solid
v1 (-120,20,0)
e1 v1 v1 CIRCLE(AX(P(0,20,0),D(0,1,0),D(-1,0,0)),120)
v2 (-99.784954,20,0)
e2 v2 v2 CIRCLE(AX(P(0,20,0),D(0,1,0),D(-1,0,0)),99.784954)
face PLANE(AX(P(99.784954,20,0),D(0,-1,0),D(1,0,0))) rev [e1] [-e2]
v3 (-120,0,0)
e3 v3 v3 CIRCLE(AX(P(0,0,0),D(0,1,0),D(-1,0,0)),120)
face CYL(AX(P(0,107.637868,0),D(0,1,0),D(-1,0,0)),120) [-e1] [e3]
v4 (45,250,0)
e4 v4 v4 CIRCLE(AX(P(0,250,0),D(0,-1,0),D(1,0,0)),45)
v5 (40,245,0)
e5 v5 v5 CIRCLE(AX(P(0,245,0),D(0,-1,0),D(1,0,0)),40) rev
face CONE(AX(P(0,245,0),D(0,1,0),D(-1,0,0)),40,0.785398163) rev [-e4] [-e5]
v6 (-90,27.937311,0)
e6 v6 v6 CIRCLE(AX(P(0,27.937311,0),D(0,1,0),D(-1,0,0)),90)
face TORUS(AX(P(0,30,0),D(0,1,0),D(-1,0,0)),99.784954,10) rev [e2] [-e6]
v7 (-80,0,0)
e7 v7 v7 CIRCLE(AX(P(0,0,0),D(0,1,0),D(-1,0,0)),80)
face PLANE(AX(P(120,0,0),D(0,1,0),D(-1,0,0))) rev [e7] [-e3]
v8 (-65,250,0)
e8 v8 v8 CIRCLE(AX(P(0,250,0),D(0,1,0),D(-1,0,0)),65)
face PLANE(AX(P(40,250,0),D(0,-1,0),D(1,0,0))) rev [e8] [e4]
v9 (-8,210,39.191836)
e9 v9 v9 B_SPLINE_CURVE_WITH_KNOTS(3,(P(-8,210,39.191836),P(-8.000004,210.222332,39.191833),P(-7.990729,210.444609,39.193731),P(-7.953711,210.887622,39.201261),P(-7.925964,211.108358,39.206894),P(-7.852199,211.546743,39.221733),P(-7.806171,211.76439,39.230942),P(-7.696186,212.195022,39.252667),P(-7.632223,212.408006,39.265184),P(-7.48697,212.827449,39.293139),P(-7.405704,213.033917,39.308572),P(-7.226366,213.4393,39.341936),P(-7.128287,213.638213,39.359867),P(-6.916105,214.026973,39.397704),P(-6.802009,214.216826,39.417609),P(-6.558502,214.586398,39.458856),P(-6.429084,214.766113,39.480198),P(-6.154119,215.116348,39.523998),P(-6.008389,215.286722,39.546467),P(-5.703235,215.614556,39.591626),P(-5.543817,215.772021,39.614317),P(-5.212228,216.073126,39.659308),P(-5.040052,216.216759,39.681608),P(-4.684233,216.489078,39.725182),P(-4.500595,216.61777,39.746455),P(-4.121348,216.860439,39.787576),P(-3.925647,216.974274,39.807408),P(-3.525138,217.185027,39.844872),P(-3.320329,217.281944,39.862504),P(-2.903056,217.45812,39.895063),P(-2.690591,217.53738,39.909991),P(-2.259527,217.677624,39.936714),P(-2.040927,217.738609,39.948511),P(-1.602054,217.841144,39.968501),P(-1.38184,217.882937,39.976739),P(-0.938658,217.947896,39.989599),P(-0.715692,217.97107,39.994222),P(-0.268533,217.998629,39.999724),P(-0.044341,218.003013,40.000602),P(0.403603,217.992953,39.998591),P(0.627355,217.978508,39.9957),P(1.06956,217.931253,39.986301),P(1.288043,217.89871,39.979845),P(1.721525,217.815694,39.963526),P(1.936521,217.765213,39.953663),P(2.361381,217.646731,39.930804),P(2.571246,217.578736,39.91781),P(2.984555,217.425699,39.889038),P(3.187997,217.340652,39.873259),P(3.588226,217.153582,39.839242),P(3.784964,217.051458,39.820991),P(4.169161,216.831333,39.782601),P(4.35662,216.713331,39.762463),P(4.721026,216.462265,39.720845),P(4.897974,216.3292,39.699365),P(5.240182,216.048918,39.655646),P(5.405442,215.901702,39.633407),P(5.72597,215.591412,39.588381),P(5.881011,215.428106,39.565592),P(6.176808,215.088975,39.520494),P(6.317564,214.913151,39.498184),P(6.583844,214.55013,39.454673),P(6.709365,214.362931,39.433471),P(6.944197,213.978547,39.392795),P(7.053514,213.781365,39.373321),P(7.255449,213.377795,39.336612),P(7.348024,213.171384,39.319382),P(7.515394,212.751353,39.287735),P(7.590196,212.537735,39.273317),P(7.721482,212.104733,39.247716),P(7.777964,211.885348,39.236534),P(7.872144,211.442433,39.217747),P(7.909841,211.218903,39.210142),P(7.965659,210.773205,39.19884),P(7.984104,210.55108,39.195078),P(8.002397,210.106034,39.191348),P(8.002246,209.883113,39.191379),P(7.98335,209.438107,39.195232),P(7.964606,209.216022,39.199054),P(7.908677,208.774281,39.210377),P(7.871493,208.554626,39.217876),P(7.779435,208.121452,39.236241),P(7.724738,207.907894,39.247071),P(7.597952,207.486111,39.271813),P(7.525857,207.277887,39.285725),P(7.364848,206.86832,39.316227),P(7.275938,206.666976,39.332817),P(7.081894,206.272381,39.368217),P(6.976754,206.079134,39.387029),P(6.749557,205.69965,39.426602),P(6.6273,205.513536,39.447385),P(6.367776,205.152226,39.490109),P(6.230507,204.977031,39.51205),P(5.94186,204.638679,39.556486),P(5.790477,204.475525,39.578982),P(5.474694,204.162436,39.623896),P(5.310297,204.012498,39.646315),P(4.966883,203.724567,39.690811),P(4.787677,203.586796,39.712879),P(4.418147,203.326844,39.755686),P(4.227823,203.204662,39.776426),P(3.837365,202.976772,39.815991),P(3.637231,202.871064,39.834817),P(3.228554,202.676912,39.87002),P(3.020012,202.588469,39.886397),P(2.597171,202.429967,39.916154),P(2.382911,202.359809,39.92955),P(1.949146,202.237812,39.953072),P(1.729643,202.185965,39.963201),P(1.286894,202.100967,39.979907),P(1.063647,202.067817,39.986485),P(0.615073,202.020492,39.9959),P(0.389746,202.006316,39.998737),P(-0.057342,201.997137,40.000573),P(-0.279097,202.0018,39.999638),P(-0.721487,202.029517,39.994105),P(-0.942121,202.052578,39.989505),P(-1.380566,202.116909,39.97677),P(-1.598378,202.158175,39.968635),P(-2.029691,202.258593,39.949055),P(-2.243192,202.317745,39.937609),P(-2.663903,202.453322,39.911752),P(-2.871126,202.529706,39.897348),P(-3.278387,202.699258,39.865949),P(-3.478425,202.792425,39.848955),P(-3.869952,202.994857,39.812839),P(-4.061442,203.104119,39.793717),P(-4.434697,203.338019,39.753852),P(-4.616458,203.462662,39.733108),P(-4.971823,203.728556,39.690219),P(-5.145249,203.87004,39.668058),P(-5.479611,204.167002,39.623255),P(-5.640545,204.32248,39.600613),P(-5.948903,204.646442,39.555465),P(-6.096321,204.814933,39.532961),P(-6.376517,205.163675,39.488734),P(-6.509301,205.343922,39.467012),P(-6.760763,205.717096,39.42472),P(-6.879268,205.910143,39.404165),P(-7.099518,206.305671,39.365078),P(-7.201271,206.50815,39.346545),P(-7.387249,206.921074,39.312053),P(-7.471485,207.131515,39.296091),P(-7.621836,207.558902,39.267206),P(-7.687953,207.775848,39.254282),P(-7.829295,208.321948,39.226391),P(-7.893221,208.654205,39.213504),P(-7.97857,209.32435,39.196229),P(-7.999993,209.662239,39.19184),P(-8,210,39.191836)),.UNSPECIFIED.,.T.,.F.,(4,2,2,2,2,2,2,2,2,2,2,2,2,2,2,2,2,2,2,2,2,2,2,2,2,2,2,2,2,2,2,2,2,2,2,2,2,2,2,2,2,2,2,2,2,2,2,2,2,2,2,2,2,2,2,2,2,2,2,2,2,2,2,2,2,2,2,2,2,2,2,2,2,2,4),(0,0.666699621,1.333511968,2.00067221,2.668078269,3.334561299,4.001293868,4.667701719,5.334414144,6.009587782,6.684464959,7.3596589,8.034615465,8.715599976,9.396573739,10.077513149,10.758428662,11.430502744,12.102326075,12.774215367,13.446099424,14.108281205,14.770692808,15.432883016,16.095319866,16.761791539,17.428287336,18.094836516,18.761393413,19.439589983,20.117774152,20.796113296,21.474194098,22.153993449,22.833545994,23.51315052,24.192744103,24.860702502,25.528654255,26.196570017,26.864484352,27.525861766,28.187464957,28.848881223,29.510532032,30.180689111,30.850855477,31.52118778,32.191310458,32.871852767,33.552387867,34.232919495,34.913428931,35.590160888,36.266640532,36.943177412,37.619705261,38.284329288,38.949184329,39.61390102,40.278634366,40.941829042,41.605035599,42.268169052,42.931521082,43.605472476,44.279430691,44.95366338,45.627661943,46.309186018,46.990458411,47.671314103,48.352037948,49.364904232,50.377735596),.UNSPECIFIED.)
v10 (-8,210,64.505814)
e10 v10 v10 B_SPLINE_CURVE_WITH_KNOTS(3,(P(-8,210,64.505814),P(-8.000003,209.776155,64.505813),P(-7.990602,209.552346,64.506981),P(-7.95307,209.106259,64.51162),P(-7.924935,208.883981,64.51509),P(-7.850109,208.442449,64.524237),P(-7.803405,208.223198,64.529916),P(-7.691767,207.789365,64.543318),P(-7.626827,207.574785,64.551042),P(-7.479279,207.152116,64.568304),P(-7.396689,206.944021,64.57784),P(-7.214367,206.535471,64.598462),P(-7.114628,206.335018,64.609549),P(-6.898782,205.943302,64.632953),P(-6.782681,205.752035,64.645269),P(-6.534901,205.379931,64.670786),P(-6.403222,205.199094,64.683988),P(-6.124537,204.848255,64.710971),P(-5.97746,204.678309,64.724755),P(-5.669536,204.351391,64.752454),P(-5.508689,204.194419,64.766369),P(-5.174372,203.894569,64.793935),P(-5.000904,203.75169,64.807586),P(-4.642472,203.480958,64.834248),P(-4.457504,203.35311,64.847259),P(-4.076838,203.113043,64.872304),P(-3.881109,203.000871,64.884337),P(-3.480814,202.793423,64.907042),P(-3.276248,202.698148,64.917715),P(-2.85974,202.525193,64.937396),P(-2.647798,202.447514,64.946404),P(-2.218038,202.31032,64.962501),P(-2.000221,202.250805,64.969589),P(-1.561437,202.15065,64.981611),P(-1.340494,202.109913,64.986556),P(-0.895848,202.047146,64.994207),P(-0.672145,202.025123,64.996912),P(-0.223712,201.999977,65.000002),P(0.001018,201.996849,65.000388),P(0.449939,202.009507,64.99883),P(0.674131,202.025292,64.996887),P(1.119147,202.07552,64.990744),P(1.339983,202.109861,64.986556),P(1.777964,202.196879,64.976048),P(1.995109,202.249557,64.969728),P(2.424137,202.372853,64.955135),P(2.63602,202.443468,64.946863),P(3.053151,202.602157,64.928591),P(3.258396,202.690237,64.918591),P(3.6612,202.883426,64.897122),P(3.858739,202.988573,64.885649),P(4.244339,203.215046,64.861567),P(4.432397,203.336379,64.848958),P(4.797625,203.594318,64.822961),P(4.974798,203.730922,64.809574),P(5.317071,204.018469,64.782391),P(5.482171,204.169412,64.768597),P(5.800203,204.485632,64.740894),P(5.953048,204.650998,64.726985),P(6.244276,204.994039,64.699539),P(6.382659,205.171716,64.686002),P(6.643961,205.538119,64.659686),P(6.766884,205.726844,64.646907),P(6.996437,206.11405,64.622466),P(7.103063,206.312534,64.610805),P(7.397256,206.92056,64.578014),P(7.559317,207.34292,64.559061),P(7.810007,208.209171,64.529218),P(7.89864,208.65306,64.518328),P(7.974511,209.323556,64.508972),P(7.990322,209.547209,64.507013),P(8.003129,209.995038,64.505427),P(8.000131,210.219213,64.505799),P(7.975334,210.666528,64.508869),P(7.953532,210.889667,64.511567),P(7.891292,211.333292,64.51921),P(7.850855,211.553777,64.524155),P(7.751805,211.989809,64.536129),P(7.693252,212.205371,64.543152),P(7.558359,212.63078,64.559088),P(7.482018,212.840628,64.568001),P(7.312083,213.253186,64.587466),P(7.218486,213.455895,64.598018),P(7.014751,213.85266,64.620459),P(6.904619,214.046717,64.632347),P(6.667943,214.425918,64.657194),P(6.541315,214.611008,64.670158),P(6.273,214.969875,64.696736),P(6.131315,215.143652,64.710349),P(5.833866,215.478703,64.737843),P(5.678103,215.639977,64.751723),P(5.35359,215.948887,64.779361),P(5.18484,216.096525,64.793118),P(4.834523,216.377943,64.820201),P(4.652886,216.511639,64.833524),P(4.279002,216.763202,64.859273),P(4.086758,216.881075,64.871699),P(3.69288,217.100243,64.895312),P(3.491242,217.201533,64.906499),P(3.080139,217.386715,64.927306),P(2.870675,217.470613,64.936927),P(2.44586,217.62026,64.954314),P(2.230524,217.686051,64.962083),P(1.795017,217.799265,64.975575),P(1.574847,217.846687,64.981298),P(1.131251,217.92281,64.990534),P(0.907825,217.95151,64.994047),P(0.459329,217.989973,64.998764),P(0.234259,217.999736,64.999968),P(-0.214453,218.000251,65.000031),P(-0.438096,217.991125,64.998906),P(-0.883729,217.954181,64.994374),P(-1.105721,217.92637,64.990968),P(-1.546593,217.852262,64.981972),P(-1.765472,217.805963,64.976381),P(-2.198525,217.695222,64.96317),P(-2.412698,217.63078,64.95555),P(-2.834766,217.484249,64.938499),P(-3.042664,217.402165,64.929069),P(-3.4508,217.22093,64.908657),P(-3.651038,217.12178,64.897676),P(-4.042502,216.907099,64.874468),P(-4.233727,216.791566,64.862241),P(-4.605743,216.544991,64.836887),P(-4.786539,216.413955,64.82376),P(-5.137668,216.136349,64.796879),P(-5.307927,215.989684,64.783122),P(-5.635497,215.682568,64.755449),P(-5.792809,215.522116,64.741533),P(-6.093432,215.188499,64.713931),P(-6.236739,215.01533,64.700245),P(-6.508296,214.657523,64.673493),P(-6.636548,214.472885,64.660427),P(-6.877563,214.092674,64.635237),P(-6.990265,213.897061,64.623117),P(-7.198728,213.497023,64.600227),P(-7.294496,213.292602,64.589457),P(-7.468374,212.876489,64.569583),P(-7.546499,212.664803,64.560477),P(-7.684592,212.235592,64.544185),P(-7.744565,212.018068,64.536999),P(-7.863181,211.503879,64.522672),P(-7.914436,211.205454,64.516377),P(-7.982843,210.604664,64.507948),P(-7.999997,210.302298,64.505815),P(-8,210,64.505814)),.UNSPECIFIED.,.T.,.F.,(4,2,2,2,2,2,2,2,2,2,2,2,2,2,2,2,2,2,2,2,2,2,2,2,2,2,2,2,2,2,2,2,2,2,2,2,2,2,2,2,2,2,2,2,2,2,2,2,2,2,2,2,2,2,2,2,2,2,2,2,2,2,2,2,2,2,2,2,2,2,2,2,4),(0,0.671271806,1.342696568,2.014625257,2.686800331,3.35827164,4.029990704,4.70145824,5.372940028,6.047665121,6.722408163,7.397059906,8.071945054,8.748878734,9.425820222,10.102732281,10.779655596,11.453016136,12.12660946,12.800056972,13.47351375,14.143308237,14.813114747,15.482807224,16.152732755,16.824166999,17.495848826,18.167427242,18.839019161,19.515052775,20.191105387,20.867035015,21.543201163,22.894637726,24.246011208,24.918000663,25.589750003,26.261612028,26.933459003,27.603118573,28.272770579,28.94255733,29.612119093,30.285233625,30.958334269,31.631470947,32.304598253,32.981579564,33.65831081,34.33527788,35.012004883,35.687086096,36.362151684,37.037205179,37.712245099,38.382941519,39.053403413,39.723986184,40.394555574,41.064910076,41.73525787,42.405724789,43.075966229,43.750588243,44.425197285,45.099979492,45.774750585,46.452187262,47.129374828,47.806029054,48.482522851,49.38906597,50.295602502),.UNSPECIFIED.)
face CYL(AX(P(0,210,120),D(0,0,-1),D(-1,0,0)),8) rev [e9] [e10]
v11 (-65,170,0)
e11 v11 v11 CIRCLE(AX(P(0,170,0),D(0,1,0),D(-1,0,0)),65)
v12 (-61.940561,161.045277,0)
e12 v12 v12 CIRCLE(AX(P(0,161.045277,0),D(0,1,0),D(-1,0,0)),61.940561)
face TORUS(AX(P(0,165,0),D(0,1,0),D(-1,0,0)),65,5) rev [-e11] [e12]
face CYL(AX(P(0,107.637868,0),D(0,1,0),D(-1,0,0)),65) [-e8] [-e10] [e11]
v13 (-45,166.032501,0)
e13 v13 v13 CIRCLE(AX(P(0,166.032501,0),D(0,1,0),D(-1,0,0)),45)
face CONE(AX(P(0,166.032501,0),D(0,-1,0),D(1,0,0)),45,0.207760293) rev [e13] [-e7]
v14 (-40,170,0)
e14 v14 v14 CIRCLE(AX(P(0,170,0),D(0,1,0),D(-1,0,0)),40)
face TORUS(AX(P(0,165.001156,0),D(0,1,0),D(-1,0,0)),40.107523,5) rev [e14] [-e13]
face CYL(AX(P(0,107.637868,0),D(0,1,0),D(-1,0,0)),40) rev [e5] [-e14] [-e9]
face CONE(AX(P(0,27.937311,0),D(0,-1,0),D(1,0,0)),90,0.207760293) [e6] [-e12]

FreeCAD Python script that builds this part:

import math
import FreeCAD as App
import Part
import Sketcher
from FreeCAD import Vector


def edges_at(feature, points):
    """Names of the edges that pass closest to the given points."""
    edges = feature.Shape.Edges
    near = lambda p: min(range(len(edges)), key=lambda i: edges[i].distToShape(Part.Vertex(*p))[0])
    return sorted({f"Edge{near(p) + 1}" for p in points})

doc = App.newDocument("Part")
body = doc.addObject("PartDesign::Body", "Body")

# Sketch on XY plane
sketch1 = doc.addObject("Sketcher::SketchObject", "Sketch")
body.addObject(sketch1)
sketch1.AttachmentSupport = (doc.XY_Plane, [""])
sketch1.MapMode = "FlatFace"
sketch1.addGeometry([
    Part.LineSegment(Vector(65, 250, 0), Vector(40, 250, 0)),  # 0
    Part.LineSegment(Vector(40, 250, 0), Vector(40, 170, 0)),  # 1
    Part.ArcOfCircle(Part.Circle(Vector(40.1, 165, 0), Vector(0, 0, 1), 5), math.radians(12), math.radians(91)),  # 2
    Part.LineSegment(Vector(45, 166, 0), Vector(80, 0, 0)),  # 3
    Part.LineSegment(Vector(80, 0, 0), Vector(120, 0, 0)),  # 4
    Part.LineSegment(Vector(120, 0, 0), Vector(120, 20, 0)),  # 5
    Part.LineSegment(Vector(120, 20, 0), Vector(99.8, 20, 0)),  # 6
    Part.ArcOfCircle(Part.Circle(Vector(99.8, 30, 0), Vector(0, 0, 1), 10), math.radians(-168), math.radians(-90)),  # 7
    Part.LineSegment(Vector(90, 27.9, 0), Vector(61.9, 161, 0)),  # 8
    Part.ArcOfCircle(Part.Circle(Vector(65, 165, 0), Vector(0, 0, 1), 5), math.radians(90), math.radians(232)),  # 9
    Part.LineSegment(Vector(65, 170, 0), Vector(65, 250, 0)),  # 10
], False)
sketch1.addConstraint([
    Sketcher.Constraint("Coincident", 0, 2, 1, 1),
    Sketcher.Constraint("Coincident", 1, 2, 2, 2),
    Sketcher.Constraint("Tangent", 2, 1, 3, 1),
    Sketcher.Constraint("Coincident", 3, 2, 4, 1),
    Sketcher.Constraint("Coincident", 4, 2, 5, 1),
    Sketcher.Constraint("Coincident", 5, 2, 6, 1),
    Sketcher.Constraint("Tangent", 6, 2, 7, 2),
    Sketcher.Constraint("Tangent", 7, 1, 8, 1),
    Sketcher.Constraint("Coincident", 8, 2, 9, 2),
    Sketcher.Constraint("Coincident", 9, 1, 10, 1),
    Sketcher.Constraint("Coincident", 10, 2, 0, 1),
    Sketcher.Constraint("Horizontal", 0),
    Sketcher.Constraint("Vertical", 1),
    Sketcher.Constraint("Horizontal", 4),
    Sketcher.Constraint("Vertical", 5),
    Sketcher.Constraint("Horizontal", 6),
    Sketcher.Constraint("Vertical", 10),
    Sketcher.Constraint("Equal", 2, 9),
    Sketcher.Constraint("PointOnObject", 3, 2, -1),
    Sketcher.Constraint("Parallel", 3, 8),
    Sketcher.Constraint("Horizontal", 1, 2, 9, 1),
    Sketcher.Constraint("Radius", 2, 5.0),
    Sketcher.Constraint("Radius", 7, 10.0),
    Sketcher.Constraint("DistanceX", 0, 2, 0, 1, 25.0),
    Sketcher.Constraint("DistanceX", 4, 1, 4, 2, 40.0),
    Sketcher.Constraint("DistanceY", 1, 2, 1, 1, 80.0),
    Sketcher.Constraint("DistanceY", 5, 1, 5, 2, 20.0),
    Sketcher.Constraint("DistanceX", -1, 1, 9, 3, 65.0),
    Sketcher.Constraint("DistanceY", -1, 1, 9, 3, 165.0),
    Sketcher.Constraint("DistanceX", -1, 1, 0, 2, 40.0),
    Sketcher.Constraint("DistanceX", -1, 1, 2, 1, 45.0),
    Sketcher.Constraint("DistanceX", -1, 1, 3, 2, 80.0),
    Sketcher.Constraint("DistanceX", -1, 1, 7, 1, 90.0),
])
revolution = doc.addObject("PartDesign::Revolution", "Revolution")
body.addObject(revolution)
revolution.Profile = sketch1
revolution.ReferenceAxis = (sketch1, ["V_Axis"])
revolution.Angle = 360
doc.recompute()

chamfer = doc.addObject("PartDesign::Chamfer", "Chamfer")
body.addObject(chamfer)
chamfer.Base = (revolution, edges_at(revolution, [(-40, 250, 0)]))
chamfer.Size = 5

# Sketch on XY plane
sketch2 = doc.addObject("Sketcher::SketchObject", "Sketch001")
body.addObject(sketch2)
sketch2.AttachmentSupport = (doc.XY_Plane, [""])
sketch2.MapMode = "FlatFace"
sketch2.addGeometry(Part.Circle(Vector(0, 210, 0), Vector(0, 0, 1), 8), False)
sketch2.addConstraint([
    Sketcher.Constraint("PointOnObject", 0, 3, -2),
    Sketcher.Constraint("Diameter", 0, 16.0),
    Sketcher.Constraint("DistanceY", -1, 1, 0, 3, 210.0),
])
pocket1 = doc.addObject("PartDesign::Pocket", "Pocket")
body.addObject(pocket1)
pocket1.Profile = sketch2
pocket1.Length = 120
pocket1.Reversed = True

doc.recompute()
